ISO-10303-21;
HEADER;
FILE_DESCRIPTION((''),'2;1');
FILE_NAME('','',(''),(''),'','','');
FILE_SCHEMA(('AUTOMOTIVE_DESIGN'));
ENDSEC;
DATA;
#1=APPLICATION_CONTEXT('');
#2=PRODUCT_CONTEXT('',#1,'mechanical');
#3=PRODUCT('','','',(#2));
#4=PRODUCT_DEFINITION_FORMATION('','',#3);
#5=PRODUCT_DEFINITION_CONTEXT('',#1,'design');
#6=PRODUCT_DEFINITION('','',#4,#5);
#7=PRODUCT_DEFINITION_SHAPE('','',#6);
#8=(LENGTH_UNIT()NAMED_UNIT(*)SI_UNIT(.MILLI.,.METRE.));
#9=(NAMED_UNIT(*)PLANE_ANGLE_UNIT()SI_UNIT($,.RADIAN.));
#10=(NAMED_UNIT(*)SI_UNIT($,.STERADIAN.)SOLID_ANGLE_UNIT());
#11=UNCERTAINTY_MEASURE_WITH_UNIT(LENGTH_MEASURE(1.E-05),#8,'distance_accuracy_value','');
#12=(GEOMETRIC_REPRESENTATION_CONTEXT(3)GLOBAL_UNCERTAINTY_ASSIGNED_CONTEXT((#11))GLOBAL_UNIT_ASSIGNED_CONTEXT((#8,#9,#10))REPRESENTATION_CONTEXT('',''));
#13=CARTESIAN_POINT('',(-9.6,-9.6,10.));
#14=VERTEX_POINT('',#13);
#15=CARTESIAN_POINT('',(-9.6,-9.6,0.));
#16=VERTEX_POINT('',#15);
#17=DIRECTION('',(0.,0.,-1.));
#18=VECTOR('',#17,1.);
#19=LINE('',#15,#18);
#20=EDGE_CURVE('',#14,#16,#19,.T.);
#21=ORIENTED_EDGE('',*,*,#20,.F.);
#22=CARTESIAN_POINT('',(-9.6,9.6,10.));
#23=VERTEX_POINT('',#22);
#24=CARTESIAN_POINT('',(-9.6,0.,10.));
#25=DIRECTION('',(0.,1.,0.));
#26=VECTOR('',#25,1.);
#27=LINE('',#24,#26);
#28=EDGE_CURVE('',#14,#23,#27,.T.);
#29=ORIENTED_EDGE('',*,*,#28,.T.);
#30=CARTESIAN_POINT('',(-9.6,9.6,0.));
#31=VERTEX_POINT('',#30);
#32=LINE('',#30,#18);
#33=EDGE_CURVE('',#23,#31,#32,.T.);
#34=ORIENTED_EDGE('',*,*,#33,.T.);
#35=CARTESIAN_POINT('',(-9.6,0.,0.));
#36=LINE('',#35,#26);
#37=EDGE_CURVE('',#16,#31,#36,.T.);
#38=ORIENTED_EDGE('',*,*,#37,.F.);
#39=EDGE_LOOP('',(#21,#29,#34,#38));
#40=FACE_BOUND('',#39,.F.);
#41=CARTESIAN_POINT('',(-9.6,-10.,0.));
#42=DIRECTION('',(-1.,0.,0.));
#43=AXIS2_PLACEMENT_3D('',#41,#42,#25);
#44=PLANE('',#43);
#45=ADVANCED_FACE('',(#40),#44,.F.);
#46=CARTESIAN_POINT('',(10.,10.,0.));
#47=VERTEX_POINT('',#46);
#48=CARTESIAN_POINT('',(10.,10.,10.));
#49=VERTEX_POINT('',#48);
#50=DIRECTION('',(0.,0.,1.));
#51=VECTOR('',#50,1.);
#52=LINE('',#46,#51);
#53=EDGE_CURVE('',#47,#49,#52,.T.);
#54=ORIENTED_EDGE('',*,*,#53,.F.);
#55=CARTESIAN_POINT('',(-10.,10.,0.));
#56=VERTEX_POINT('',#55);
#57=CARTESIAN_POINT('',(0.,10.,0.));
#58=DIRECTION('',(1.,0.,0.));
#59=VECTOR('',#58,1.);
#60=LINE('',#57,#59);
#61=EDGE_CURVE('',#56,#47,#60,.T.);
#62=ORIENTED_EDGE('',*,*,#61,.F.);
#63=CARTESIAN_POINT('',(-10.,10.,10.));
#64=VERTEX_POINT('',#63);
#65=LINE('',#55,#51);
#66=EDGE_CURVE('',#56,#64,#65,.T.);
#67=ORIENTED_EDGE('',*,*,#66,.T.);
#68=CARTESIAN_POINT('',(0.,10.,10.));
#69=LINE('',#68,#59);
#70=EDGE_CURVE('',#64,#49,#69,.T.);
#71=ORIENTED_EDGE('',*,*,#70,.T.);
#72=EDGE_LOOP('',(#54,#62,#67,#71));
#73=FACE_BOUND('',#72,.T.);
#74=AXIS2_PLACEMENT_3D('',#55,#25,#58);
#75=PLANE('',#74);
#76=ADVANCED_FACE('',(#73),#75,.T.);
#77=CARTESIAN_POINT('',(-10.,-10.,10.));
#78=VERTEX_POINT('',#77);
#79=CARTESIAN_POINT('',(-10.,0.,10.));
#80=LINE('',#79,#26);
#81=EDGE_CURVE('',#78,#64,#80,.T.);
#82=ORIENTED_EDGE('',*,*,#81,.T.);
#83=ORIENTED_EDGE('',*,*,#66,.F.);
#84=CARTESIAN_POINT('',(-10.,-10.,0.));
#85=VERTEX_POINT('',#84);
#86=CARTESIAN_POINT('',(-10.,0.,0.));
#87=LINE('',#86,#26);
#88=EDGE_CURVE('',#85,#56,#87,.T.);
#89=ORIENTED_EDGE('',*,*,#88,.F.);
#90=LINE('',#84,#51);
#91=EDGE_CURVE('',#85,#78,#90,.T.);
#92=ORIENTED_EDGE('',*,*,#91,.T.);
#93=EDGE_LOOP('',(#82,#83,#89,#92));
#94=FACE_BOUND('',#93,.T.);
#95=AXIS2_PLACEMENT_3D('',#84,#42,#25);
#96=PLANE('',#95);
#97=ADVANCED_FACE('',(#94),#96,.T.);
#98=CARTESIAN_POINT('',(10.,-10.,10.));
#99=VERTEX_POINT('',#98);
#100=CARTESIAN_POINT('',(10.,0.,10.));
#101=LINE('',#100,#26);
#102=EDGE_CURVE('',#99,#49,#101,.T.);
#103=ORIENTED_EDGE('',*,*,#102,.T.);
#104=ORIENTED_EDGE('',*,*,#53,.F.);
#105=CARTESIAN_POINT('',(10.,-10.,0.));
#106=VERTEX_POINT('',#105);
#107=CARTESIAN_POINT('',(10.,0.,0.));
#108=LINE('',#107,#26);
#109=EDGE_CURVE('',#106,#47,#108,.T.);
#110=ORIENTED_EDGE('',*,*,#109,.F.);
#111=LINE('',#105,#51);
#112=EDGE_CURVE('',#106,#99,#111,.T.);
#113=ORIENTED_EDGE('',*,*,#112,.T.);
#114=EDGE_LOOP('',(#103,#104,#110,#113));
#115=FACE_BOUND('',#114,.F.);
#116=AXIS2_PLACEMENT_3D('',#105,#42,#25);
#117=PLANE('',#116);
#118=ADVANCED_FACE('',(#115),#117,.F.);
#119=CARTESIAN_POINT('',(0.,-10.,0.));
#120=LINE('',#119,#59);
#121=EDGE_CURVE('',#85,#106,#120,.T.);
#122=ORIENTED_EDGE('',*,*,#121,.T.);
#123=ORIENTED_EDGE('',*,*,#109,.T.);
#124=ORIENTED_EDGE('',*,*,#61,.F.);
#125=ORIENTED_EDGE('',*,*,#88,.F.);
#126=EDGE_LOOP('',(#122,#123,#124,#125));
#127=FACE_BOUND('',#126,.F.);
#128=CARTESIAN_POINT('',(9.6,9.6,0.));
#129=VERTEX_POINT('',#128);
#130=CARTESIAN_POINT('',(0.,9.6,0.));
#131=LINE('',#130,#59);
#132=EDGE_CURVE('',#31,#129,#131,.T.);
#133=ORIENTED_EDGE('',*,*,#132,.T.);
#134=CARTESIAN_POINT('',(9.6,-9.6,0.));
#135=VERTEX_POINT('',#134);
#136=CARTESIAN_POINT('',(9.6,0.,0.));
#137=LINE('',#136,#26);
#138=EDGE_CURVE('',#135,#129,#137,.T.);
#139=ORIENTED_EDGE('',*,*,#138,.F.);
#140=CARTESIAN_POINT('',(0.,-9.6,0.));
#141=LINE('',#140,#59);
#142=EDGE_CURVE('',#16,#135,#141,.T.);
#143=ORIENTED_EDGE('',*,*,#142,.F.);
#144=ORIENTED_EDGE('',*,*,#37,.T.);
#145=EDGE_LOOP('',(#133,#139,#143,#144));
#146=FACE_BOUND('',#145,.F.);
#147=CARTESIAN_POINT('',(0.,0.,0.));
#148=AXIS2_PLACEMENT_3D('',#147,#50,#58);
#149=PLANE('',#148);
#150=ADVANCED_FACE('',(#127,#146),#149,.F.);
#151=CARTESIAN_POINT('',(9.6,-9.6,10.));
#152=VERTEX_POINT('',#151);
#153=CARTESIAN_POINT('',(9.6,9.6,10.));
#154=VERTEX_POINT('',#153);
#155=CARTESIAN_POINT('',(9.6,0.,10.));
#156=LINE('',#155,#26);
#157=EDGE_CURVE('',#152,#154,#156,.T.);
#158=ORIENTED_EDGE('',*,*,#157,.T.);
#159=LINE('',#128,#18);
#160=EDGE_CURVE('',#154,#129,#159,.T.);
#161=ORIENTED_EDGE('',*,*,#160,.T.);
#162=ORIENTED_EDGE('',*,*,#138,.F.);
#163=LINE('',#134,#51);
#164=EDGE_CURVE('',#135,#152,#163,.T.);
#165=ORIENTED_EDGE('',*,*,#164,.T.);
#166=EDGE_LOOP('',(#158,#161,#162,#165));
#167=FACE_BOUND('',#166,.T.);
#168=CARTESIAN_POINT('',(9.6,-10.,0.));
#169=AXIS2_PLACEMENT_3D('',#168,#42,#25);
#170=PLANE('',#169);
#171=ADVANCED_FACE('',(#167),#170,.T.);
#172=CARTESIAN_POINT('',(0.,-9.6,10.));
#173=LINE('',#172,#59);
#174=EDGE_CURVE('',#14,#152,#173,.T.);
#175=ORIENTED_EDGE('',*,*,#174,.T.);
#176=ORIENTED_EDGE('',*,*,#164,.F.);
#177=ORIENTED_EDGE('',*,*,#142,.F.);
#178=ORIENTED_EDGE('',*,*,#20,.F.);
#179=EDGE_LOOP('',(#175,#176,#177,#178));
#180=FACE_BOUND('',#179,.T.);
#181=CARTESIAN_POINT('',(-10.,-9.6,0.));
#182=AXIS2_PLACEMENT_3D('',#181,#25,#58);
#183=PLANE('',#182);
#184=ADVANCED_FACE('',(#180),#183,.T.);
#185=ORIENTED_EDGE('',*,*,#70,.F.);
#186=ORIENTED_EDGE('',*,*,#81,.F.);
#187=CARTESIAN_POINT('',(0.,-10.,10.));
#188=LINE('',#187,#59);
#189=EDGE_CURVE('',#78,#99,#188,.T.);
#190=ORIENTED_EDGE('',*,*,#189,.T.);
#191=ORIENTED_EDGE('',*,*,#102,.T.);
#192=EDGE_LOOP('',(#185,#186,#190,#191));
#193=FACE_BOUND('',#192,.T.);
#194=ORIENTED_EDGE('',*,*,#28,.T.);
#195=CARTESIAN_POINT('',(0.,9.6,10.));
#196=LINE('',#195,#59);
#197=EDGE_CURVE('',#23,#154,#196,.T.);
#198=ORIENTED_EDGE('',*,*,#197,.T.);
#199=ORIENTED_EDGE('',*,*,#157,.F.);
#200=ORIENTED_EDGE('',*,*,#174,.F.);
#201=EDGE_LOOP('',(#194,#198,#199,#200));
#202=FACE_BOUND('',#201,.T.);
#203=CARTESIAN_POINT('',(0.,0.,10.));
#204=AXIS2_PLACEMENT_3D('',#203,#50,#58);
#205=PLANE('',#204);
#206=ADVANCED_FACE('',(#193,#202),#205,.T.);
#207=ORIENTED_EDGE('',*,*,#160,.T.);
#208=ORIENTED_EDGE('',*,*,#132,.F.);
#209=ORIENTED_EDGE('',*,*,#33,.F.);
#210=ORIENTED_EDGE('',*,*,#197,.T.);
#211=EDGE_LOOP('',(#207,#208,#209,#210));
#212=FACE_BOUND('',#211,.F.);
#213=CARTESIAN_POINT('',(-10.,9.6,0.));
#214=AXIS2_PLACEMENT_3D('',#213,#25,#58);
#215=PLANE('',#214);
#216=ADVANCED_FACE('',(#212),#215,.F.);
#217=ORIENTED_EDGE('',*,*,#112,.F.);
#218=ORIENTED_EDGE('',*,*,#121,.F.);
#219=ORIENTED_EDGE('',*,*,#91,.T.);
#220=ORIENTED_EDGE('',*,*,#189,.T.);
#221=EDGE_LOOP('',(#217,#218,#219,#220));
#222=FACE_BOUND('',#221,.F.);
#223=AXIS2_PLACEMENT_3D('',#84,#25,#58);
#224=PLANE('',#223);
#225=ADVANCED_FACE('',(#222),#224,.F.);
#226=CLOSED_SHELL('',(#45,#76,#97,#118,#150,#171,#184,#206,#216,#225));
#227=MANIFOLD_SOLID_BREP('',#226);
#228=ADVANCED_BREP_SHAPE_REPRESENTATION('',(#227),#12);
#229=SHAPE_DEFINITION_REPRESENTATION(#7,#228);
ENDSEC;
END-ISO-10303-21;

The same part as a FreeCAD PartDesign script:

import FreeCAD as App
import Part
import Sketcher

V = App.Vector
Q = App.Units.Quantity


def faces_at(feature, points):
    """Names of the faces that lie closest to the given points."""
    faces = feature.Shape.Faces
    near = lambda p: min(range(len(faces)), key=lambda i: faces[i].distToShape(Part.Vertex(*p))[0])
    return sorted({f"Face{near(p) + 1}" for p in points})

doc = App.newDocument("Part")
params = doc.addObject("Spreadsheet::Sheet", "Params")
for row, (alias, value) in enumerate([
    ("sketch1_width", "20 mm"),
    ("pad1_length", "10 mm"),
    ("thickness_wall", "0.4 mm"),
], start=1):
    params.set(f"A{row}", alias)
    params.set(f"B{row}", "=" + value)
    params.setAlias(f"B{row}", alias)

body = doc.addObject("PartDesign::Body", "Body")

# Sketch on XY plane
sketch1 = doc.addObject("Sketcher::SketchObject", "Sketch")
body.addObject(sketch1)
sketch1.AttachmentSupport = (doc.XY_Plane, [""])
sketch1.MapMode = "FlatFace"
sketch1.addGeometry([
    Part.LineSegment(V(-10, 10, 0), V(-10, -10, 0)),
    Part.LineSegment(V(-10, -10, 0), V(10, -10, 0)),
    Part.LineSegment(V(10, -10, 0), V(10, 10, 0)),
    Part.LineSegment(V(10, 10, 0), V(-10, 10, 0)),
], False)
sketch1.addConstraint([
    Sketcher.Constraint("Coincident", 0, 2, 1, 1),
    Sketcher.Constraint("Coincident", 1, 2, 2, 1),
    Sketcher.Constraint("Coincident", 2, 2, 3, 1),
    Sketcher.Constraint("Coincident", 3, 2, 0, 1),
    Sketcher.Constraint("Vertical", 0),
    Sketcher.Constraint("Horizontal", 1),
    Sketcher.Constraint("Vertical", 2),
    Sketcher.Constraint("Horizontal", 3),
    Sketcher.Constraint("Symmetric", 0, 2, 2, 2, -1, 1),
    Sketcher.Constraint("Equal", 3, 0),
    Sketcher.Constraint("DistanceX", 1, 1, 1, 2, Q("20 mm")),
])
sketch1.setExpression("Constraints[10]", "Params.sketch1_width")
pad1 = doc.addObject("PartDesign::Pad", "Pad")
body.addObject(pad1)
pad1.Profile = sketch1
pad1.setExpression("Length", "Params.pad1_length")
doc.recompute()

thickness = doc.addObject("PartDesign::Thickness", "Thickness")
body.addObject(thickness)
thickness.Base = (pad1, faces_at(pad1, [(0, 0, 10), (0, 0, 0)]))
thickness.setExpression("Value", "Params.thickness_wall")
thickness.Reversed = True
thickness.Join = "Arc"

doc.recompute()
